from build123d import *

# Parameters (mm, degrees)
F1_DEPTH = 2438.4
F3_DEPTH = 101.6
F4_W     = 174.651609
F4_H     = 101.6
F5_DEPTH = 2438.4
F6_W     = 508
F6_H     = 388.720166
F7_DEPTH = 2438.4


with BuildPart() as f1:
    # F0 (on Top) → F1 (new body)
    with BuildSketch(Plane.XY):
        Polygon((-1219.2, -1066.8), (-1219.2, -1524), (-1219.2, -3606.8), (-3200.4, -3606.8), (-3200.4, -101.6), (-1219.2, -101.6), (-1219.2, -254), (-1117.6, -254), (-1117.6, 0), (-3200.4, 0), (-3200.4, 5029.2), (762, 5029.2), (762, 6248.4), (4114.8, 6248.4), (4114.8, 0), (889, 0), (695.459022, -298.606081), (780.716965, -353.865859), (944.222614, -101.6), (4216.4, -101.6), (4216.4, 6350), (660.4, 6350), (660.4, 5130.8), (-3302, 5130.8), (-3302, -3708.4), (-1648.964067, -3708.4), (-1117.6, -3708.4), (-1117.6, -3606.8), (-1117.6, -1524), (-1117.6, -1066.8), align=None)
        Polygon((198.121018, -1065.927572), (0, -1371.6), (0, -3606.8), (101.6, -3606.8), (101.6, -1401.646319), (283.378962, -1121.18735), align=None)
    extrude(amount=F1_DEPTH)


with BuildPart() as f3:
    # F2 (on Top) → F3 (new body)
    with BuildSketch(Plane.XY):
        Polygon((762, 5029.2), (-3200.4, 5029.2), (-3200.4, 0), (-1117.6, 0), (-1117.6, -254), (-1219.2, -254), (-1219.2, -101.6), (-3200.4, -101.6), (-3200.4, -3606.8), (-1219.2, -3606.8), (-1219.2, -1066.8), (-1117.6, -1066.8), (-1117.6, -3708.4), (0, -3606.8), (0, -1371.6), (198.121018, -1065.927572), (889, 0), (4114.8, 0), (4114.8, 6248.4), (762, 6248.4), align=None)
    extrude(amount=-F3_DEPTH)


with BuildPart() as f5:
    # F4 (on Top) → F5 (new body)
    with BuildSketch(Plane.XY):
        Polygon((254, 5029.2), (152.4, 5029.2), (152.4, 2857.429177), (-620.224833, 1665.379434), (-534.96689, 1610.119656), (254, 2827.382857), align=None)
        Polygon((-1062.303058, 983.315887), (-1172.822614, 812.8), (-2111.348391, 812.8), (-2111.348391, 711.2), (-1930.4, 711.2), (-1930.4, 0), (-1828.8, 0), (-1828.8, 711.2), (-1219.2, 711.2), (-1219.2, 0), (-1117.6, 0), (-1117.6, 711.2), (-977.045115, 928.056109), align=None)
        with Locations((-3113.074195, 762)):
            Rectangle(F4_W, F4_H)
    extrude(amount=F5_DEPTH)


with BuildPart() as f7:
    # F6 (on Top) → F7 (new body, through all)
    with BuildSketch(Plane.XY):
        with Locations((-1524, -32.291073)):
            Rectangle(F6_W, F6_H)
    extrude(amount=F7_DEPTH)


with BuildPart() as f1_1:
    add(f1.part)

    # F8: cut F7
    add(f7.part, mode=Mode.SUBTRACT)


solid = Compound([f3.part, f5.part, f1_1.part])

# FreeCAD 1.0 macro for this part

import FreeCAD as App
import Part
import Sketcher

V = App.Vector
Q = App.Units.Quantity

doc = App.newDocument("Part")
body = doc.addObject("PartDesign::Body", "Body")
body.AllowCompound = True

# Sketch on XY plane
sketch1 = body.newObject("Sketcher::SketchObject", "Sketch")
sketch1.AttachmentSupport = (doc.getObject("XY_Plane"), [""])
sketch1.MapMode = "FlatFace"
sketch1.addGeometry(Part.LineSegment(V(-1219, -1067, 0), V(-1219, -3607, 0)), False)
sketch1.addGeometry(Part.LineSegment(V(-1219, -3607, 0), V(-3200, -3607, 0)), False)
sketch1.addGeometry(Part.LineSegment(V(-3200, -3607, 0), V(-3200, -102, 0)), False)
sketch1.addGeometry(Part.LineSegment(V(-3200, -102, 0), V(-1219, -102, 0)), False)
sketch1.addGeometry(Part.LineSegment(V(-1219, -102, 0), V(-1219, -254, 0)), False)
sketch1.addGeometry(Part.LineSegment(V(-1219, -254, 0), V(-1118, -254, 0)), False)
sketch1.addGeometry(Part.LineSegment(V(-1118, -254, 0), V(-1118, 0, 0)), False)
sketch1.addGeometry(Part.LineSegment(V(-1118, 0, 0), V(-3200, 0, 0)), False)
sketch1.addGeometry(Part.LineSegment(V(-3200, 0, 0), V(-3200, 5029, 0)), False)
sketch1.addGeometry(Part.LineSegment(V(-3200, 5029, 0), V(762, 5029, 0)), False)
sketch1.addGeometry(Part.LineSegment(V(762, 5029, 0), V(762, 6248, 0)), False)
sketch1.addGeometry(Part.LineSegment(V(762, 6248, 0), V(4115, 6248, 0)), False)
sketch1.addGeometry(Part.LineSegment(V(4115, 6248, 0), V(4115, 0, 0)), False)
sketch1.addGeometry(Part.LineSegment(V(4115, 0, 0), V(889, 0, 0)), False)
sketch1.addGeometry(Part.LineSegment(V(889, 0, 0), V(695, -299, 0)), False)
sketch1.addGeometry(Part.LineSegment(V(695, -299, 0), V(781, -354, 0)), False)
sketch1.addGeometry(Part.LineSegment(V(781, -354, 0), V(944, -102, 0)), False)
sketch1.addGeometry(Part.LineSegment(V(944, -102, 0), V(4216, -102, 0)), False)
sketch1.addGeometry(Part.LineSegment(V(4216, -102, 0), V(4216, 6350, 0)), False)
sketch1.addGeometry(Part.LineSegment(V(4216, 6350, 0), V(660, 6350, 0)), False)
sketch1.addGeometry(Part.LineSegment(V(660, 6350, 0), V(660, 5131, 0)), False)
sketch1.addGeometry(Part.LineSegment(V(660, 5131, 0), V(-3302, 5131, 0)), False)
sketch1.addGeometry(Part.LineSegment(V(-3302, 5131, 0), V(-3302, -3708, 0)), False)
sketch1.addGeometry(Part.LineSegment(V(-3302, -3708, 0), V(-1118, -3708, 0)), False)
sketch1.addGeometry(Part.LineSegment(V(-1118, -3708, 0), V(-1118, -1067, 0)), False)
sketch1.addGeometry(Part.LineSegment(V(-1118, -1067, 0), V(-1219, -1067, 0)), False)
sketch1.addGeometry(Part.LineSegment(V(198, -1066, 0), V(0, -1372, 0)), False)
sketch1.addGeometry(Part.LineSegment(V(0, -1372, 0), V(0, -3607, 0)), False)
sketch1.addGeometry(Part.LineSegment(V(0, -3607, 0), V(102, -3607, 0)), False)
sketch1.addGeometry(Part.LineSegment(V(102, -3607, 0), V(102, -1402, 0)), False)
sketch1.addGeometry(Part.LineSegment(V(102, -1402, 0), V(283, -1121, 0)), False)
sketch1.addGeometry(Part.LineSegment(V(283, -1121, 0), V(198, -1066, 0)), False)
sketch1.addConstraint(Sketcher.Constraint("Coincident", 0, 2, 1, 1))
sketch1.addConstraint(Sketcher.Constraint("Coincident", 1, 2, 2, 1))
sketch1.addConstraint(Sketcher.Constraint("Coincident", 2, 2, 3, 1))
sketch1.addConstraint(Sketcher.Constraint("Coincident", 3, 2, 4, 1))
sketch1.addConstraint(Sketcher.Constraint("Coincident", 4, 2, 5, 1))
sketch1.addConstraint(Sketcher.Constraint("Coincident", 5, 2, 6, 1))
sketch1.addConstraint(Sketcher.Constraint("Coincident", 6, 2, 7, 1))
sketch1.addConstraint(Sketcher.Constraint("Coincident", 7, 2, 8, 1))
sketch1.addConstraint(Sketcher.Constraint("Coincident", 8, 2, 9, 1))
sketch1.addConstraint(Sketcher.Constraint("Coincident", 9, 2, 10, 1))
sketch1.addConstraint(Sketcher.Constraint("Coincident", 10, 2, 11, 1))
sketch1.addConstraint(Sketcher.Constraint("Coincident", 11, 2, 12, 1))
sketch1.addConstraint(Sketcher.Constraint("Coincident", 12, 2, 13, 1))
sketch1.addConstraint(Sketcher.Constraint("Coincident", 13, 2, 14, 1))
sketch1.addConstraint(Sketcher.Constraint("Coincident", 14, 2, 15, 1))
sketch1.addConstraint(Sketcher.Constraint("Coincident", 15, 2, 16, 1))
sketch1.addConstraint(Sketcher.Constraint("Coincident", 16, 2, 17, 1))
sketch1.addConstraint(Sketcher.Constraint("Coincident", 17, 2, 18, 1))
sketch1.addConstraint(Sketcher.Constraint("Coincident", 18, 2, 19, 1))
sketch1.addConstraint(Sketcher.Constraint("Coincident", 19, 2, 20, 1))
sketch1.addConstraint(Sketcher.Constraint("Coincident", 20, 2, 21, 1))
sketch1.addConstraint(Sketcher.Constraint("Coincident", 21, 2, 22, 1))
sketch1.addConstraint(Sketcher.Constraint("Coincident", 22, 2, 23, 1))
sketch1.addConstraint(Sketcher.Constraint("Coincident", 23, 2, 24, 1))
sketch1.addConstraint(Sketcher.Constraint("Coincident", 24, 2, 25, 1))
sketch1.addConstraint(Sketcher.Constraint("Coincident", 25, 2, 0, 1))
sketch1.addConstraint(Sketcher.Constraint("Coincident", 26, 2, 27, 1))
sketch1.addConstraint(Sketcher.Constraint("Coincident", 27, 2, 28, 1))
sketch1.addConstraint(Sketcher.Constraint("Coincident", 28, 2, 29, 1))
sketch1.addConstraint(Sketcher.Constraint("Coincident", 29, 2, 30, 1))
sketch1.addConstraint(Sketcher.Constraint("Coincident", 30, 2, 31, 1))
sketch1.addConstraint(Sketcher.Constraint("Coincident", 31, 2, 26, 1))
sketch1.addConstraint(Sketcher.Constraint("Vertical", 0))
sketch1.addConstraint(Sketcher.Constraint("Horizontal", 1))
sketch1.addConstraint(Sketcher.Constraint("Vertical", 2))
sketch1.addConstraint(Sketcher.Constraint("Horizontal", 3))
sketch1.addConstraint(Sketcher.Constraint("Vertical", 4))
sketch1.addConstraint(Sketcher.Constraint("Horizontal", 5))
sketch1.addConstraint(Sketcher.Constraint("Vertical", 6))
sketch1.addConstraint(Sketcher.Constraint("Horizontal", 7))
sketch1.addConstraint(Sketcher.Constraint("Vertical", 8))
sketch1.addConstraint(Sketcher.Constraint("Horizontal", 9))
sketch1.addConstraint(Sketcher.Constraint("Vertical", 10))
sketch1.addConstraint(Sketcher.Constraint("Horizontal", 11))
sketch1.addConstraint(Sketcher.Constraint("Vertical", 12))
sketch1.addConstraint(Sketcher.Constraint("Horizontal", 13))
sketch1.addConstraint(Sketcher.Constraint("Horizontal", 17))
sketch1.addConstraint(Sketcher.Constraint("Vertical", 18))
sketch1.addConstraint(Sketcher.Constraint("Horizontal", 19))
sketch1.addConstraint(Sketcher.Constraint("Vertical", 20))
sketch1.addConstraint(Sketcher.Constraint("Horizontal", 21))
sketch1.addConstraint(Sketcher.Constraint("Vertical", 22))
sketch1.addConstraint(Sketcher.Constraint("Horizontal", 23))
sketch1.addConstraint(Sketcher.Constraint("Vertical", 24))
sketch1.addConstraint(Sketcher.Constraint("Horizontal", 25))
sketch1.addConstraint(Sketcher.Constraint("Vertical", 27))
sketch1.addConstraint(Sketcher.Constraint("Horizontal", 28))
sketch1.addConstraint(Sketcher.Constraint("Vertical", 29))
sketch1.addConstraint(Sketcher.Constraint("PointOnObject", 6, 2, -1))
sketch1.addConstraint(Sketcher.Constraint("PointOnObject", 12, 2, -1))
sketch1.addConstraint(Sketcher.Constraint("PointOnObject", 26, 2, -2))
sketch1.addConstraint(Sketcher.Constraint("Perpendicular", 14, 15))
sketch1.addConstraint(Sketcher.Constraint("Perpendicular", 15, 16))
sketch1.addConstraint(Sketcher.Constraint("Parallel", 16, 26))
sketch1.addConstraint(Sketcher.Constraint("Parallel", 26, 30))
sketch1.addConstraint(Sketcher.Constraint("Perpendicular", 30, 31))
sketch1.addConstraint(Sketcher.Constraint("Horizontal", 3, 2, 16, 2))
sketch1.addConstraint(Sketcher.Constraint("Horizontal", 1, 2, 27, 2))
sketch1.addConstraint(Sketcher.Constraint("Vertical", 0, 2, 3, 2))
sketch1.addConstraint(Sketcher.Constraint("Vertical", 2, 2, 7, 2))
sketch1.addConstraint(Sketcher.Constraint("Vertical", 6, 2, 23, 2))
sketch1.addConstraint(Sketcher.Constraint("Equal", 9, 21))
sketch1.addConstraint(Sketcher.Constraint("Equal", 25, 28))
sketch1.addConstraint(Sketcher.Constraint("Equal", 10, 20))
sketch1.addConstraint(Sketcher.Constraint("Equal", 15, 31))
sketch1.addConstraint(Sketcher.Constraint("DistanceX", 1, 2, 1, 1, Q("78 in")))
sketch1.addConstraint(Sketcher.Constraint("DistanceX", 5, 1, 5, 2, Q("4 in")))
sketch1.addConstraint(Sketcher.Constraint("DistanceX", 9, 1, 9, 2, Q("156 in")))
sketch1.addConstraint(Sketcher.Constraint("DistanceX", 11, 1, 11, 2, Q("132 in")))
sketch1.addConstraint(Sketcher.Constraint("DistanceX", 13, 2, 13, 1, Q("127 in")))
sketch1.addConstraint(Sketcher.Constraint("DistanceX", 19, 2, 19, 1, Q("140 in")))
sketch1.addConstraint(Sketcher.Constraint("DistanceX", 23, 1, 23, 2, Q("86 in")))
sketch1.addConstraint(Sketcher.Constraint("DistanceY", 0, 2, 0, 1, Q("100 in")))
sketch1.addConstraint(Sketcher.Constraint("DistanceY", 2, 1, 2, 2, Q("138 in")))
sketch1.addConstraint(Sketcher.Constraint("DistanceY", 4, 2, 4, 1, Q("6 in")))
sketch1.addConstraint(Sketcher.Constraint("DistanceY", 6, 1, 6, 2, Q("10 in")))
sketch1.addConstraint(Sketcher.Constraint("DistanceY", 8, 1, 8, 2, Q("198 in")))
sketch1.addConstraint(Sketcher.Constraint("DistanceY", 10, 1, 10, 2, Q("48 in")))
sketch1.addConstraint(Sketcher.Constraint("DistanceY", 18, 1, 18, 2, Q("254 in")))
sketch1.addConstraint(Sketcher.Constraint("DistanceY", 22, 2, 22, 1, Q("348 in")))
sketch1.addConstraint(Sketcher.Constraint("DistanceY", 27, 2, 27, 1, Q("88 in")))
sketch1.addConstraint(Sketcher.Constraint("Distance", 15, Q("4 in")))
sketch1.addConstraint(Sketcher.Constraint("DistanceX", 0, 2, -1, 1, Q("48 in")))
sketch1.addConstraint(Sketcher.Constraint("DistanceY", 29, 1, 29, 2, Q("2205.153681 mm")))
sketch1.addConstraint(Sketcher.Constraint("Distance", 16, Q("300.619628 mm")))
sketch1.addConstraint(Sketcher.Constraint("Distance", 26, Q("364.263052 mm")))
pad1 = body.newObject("PartDesign::Pad", "Pad")
pad1.Profile = sketch1
pad1.Length = Q("96 in")
body2 = doc.addObject("PartDesign::Body", "Body001")

# Sketch on XY plane
sketch2 = body2.newObject("Sketcher::SketchObject", "Sketch001")
sketch2.AttachmentSupport = (doc.getObject("XY_Plane001"), [""])
sketch2.MapMode = "FlatFace"
sketch2.addGeometry(Part.LineSegment(V(762, 5029, 0), V(-3200, 5029, 0)), False)
sketch2.addGeometry(Part.LineSegment(V(-3200, 5029, 0), V(-3200, 0, 0)), False)
sketch2.addGeometry(Part.LineSegment(V(-3200, 0, 0), V(-1118, 0, 0)), False)
sketch2.addGeometry(Part.LineSegment(V(-1118, 0, 0), V(-1118, -254, 0)), False)
sketch2.addGeometry(Part.LineSegment(V(-1118, -254, 0), V(-1219, -254, 0)), False)
sketch2.addGeometry(Part.LineSegment(V(-1219, -254, 0), V(-1219, -102, 0)), False)
sketch2.addGeometry(Part.LineSegment(V(-1219, -102, 0), V(-3200, -102, 0)), False)
sketch2.addGeometry(Part.LineSegment(V(-3200, -102, 0), V(-3200, -3607, 0)), False)
sketch2.addGeometry(Part.LineSegment(V(-3200, -3607, 0), V(-1219, -3607, 0)), False)
sketch2.addGeometry(Part.LineSegment(V(-1219, -3607, 0), V(-1219, -1067, 0)), False)
sketch2.addGeometry(Part.LineSegment(V(-1219, -1067, 0), V(-1118, -1067, 0)), False)
sketch2.addGeometry(Part.LineSegment(V(-1118, -1067, 0), V(-1118, -3708, 0)), False)
sketch2.addGeometry(Part.LineSegment(V(-1118, -3708, 0), V(0, -3607, 0)), False)
sketch2.addGeometry(Part.LineSegment(V(0, -3607, 0), V(0, -1372, 0)), False)
sketch2.addGeometry(Part.LineSegment(V(0, -1372, 0), V(198, -1066, 0)), False)
sketch2.addGeometry(Part.LineSegment(V(198, -1066, 0), V(889, 0, 0)), False)
sketch2.addGeometry(Part.LineSegment(V(889, 0, 0), V(4115, 0, 0)), False)
sketch2.addGeometry(Part.LineSegment(V(4115, 0, 0), V(4115, 6248, 0)), False)
sketch2.addGeometry(Part.LineSegment(V(4115, 6248, 0), V(762, 6248, 0)), False)
sketch2.addGeometry(Part.LineSegment(V(762, 6248, 0), V(762, 5029, 0)), False)
sketch2.addConstraint(Sketcher.Constraint("Coincident", 0, 2, 1, 1))
sketch2.addConstraint(Sketcher.Constraint("Coincident", 1, 2, 2, 1))
sketch2.addConstraint(Sketcher.Constraint("Coincident", 2, 2, 3, 1))
sketch2.addConstraint(Sketcher.Constraint("Coincident", 3, 2, 4, 1))
sketch2.addConstraint(Sketcher.Constraint("Coincident", 4, 2, 5, 1))
sketch2.addConstraint(Sketcher.Constraint("Coincident", 5, 2, 6, 1))
sketch2.addConstraint(Sketcher.Constraint("Coincident", 6, 2, 7, 1))
sketch2.addConstraint(Sketcher.Constraint("Coincident", 7, 2, 8, 1))
sketch2.addConstraint(Sketcher.Constraint("Coincident", 8, 2, 9, 1))
sketch2.addConstraint(Sketcher.Constraint("Coincident", 9, 2, 10, 1))
sketch2.addConstraint(Sketcher.Constraint("Coincident", 10, 2, 11, 1))
sketch2.addConstraint(Sketcher.Constraint("Coincident", 11, 2, 12, 1))
sketch2.addConstraint(Sketcher.Constraint("Coincident", 12, 2, 13, 1))
sketch2.addConstraint(Sketcher.Constraint("Coincident", 13, 2, 14, 1))
sketch2.addConstraint(Sketcher.Constraint("Coincident", 14, 2, 15, 1))
sketch2.addConstraint(Sketcher.Constraint("Coincident", 15, 2, 16, 1))
sketch2.addConstraint(Sketcher.Constraint("Coincident", 16, 2, 17, 1))
sketch2.addConstraint(Sketcher.Constraint("Coincident", 17, 2, 18, 1))
sketch2.addConstraint(Sketcher.Constraint("Coincident", 18, 2, 19, 1))
sketch2.addConstraint(Sketcher.Constraint("Coincident", 19, 2, 0, 1))
sketch2.addConstraint(Sketcher.Constraint("Horizontal", 0))
sketch2.addConstraint(Sketcher.Constraint("Vertical", 1))
sketch2.addConstraint(Sketcher.Constraint("Horizontal", 2))
sketch2.addConstraint(Sketcher.Constraint("Vertical", 3))
sketch2.addConstraint(Sketcher.Constraint("Horizontal", 4))
sketch2.addConstraint(Sketcher.Constraint("Vertical", 5))
sketch2.addConstraint(Sketcher.Constraint("Horizontal", 6))
sketch2.addConstraint(Sketcher.Constraint("Vertical", 7))
sketch2.addConstraint(Sketcher.Constraint("Horizontal", 8))
sketch2.addConstraint(Sketcher.Constraint("Vertical", 9))
sketch2.addConstraint(Sketcher.Constraint("Horizontal", 10))
sketch2.addConstraint(Sketcher.Constraint("Vertical", 11))
sketch2.addConstraint(Sketcher.Constraint("Vertical", 13))
sketch2.addConstraint(Sketcher.Constraint("Horizontal", 16))
sketch2.addConstraint(Sketcher.Constraint("Vertical", 17))
sketch2.addConstraint(Sketcher.Constraint("Horizontal", 18))
sketch2.addConstraint(Sketcher.Constraint("Vertical", 19))
sketch2.addConstraint(Sketcher.Constraint("PointOnObject", 1, 2, -1))
sketch2.addConstraint(Sketcher.Constraint("PointOnObject", 12, 2, -2))
sketch2.addConstraint(Sketcher.Constraint("PointOnObject", 15, 2, -1))
sketch2.addConstraint(Sketcher.Constraint("Parallel", 14, 15))
sketch2.addConstraint(Sketcher.Constraint("Horizontal", 8, 2, 12, 2))
sketch2.addConstraint(Sketcher.Constraint("Vertical", 1, 2, 6, 2))
sketch2.addConstraint(Sketcher.Constraint("Vertical", 5, 2, 8, 2))
sketch2.addConstraint(Sketcher.Constraint("Vertical", 3, 2, 10, 2))
sketch2.addConstraint(Sketcher.Constraint("DistanceX", 0, 2, 0, 1, Q("156 in")))
sketch2.addConstraint(Sketcher.Constraint("DistanceX", 2, 1, 2, 2, Q("82 in")))
sketch2.addConstraint(Sketcher.Constraint("DistanceX", 4, 2, 4, 1, Q("4 in")))
sketch2.addConstraint(Sketcher.Constraint("DistanceX", 16, 1, 16, 2, Q("127 in")))
sketch2.addConstraint(Sketcher.Constraint("DistanceX", 18, 2, 18, 1, Q("132 in")))
sketch2.addConstraint(Sketcher.Constraint("DistanceY", 1, 2, 1, 1, Q("198 in")))
sketch2.addConstraint(Sketcher.Constraint("DistanceY", 3, 2, 3, 1, Q("10 in")))
sketch2.addConstraint(Sketcher.Constraint("DistanceY", 5, 1, 5, 2, Q("6 in")))
sketch2.addConstraint(Sketcher.Constraint("DistanceY", 7, 2, 7, 1, Q("138 in")))
sketch2.addConstraint(Sketcher.Constraint("DistanceY", 9, 1, 9, 2, Q("100 in")))
sketch2.addConstraint(Sketcher.Constraint("DistanceY", 11, 2, 11, 1, Q("104 in")))
sketch2.addConstraint(Sketcher.Constraint("DistanceY", 13, 1, 13, 2, Q("88 in")))
sketch2.addConstraint(Sketcher.Constraint("DistanceY", 17, 1, 17, 2, Q("246 in")))
sketch2.addConstraint(Sketcher.Constraint("DistanceX", 0, 2, -1, 1, Q("126 in")))
sketch2.addConstraint(Sketcher.Constraint("Distance", 14, Q("364.263052 mm")))
pad2 = body2.newObject("PartDesign::Pad", "Pad001")
pad2.Profile = sketch2
pad2.Length = Q("4 in")
pad2.Reversed = True
body3 = doc.addObject("PartDesign::Body", "Body002")
body3.AllowCompound = True

# Sketch on XY plane
sketch3 = body3.newObject("Sketcher::SketchObject", "Sketch002")
sketch3.AttachmentSupport = (doc.getObject("XY_Plane002"), [""])
sketch3.MapMode = "FlatFace"
sketch3.addGeometry(Part.LineSegment(V(254, 5029, 0), V(152, 5029, 0)), False)
sketch3.addGeometry(Part.LineSegment(V(152, 5029, 0), V(152, 2857, 0)), False)
sketch3.addGeometry(Part.LineSegment(V(152, 2857, 0), V(-620, 1665, 0)), False)
sketch3.addGeometry(Part.LineSegment(V(-620, 1665, 0), V(-535, 1610, 0)), False)
sketch3.addGeometry(Part.LineSegment(V(-535, 1610, 0), V(254, 2827, 0)), False)
sketch3.addGeometry(Part.LineSegment(V(254, 2827, 0), V(254, 5029, 0)), False)
sketch3.addGeometry(Part.LineSegment(V(-1062, 983, 0), V(-1173, 813, 0)), False)
sketch3.addGeometry(Part.LineSegment(V(-1173, 813, 0), V(-2111, 813, 0)), False)
sketch3.addGeometry(Part.LineSegment(V(-2111, 813, 0), V(-2111, 711, 0)), False)
sketch3.addGeometry(Part.LineSegment(V(-2111, 711, 0), V(-1930, 711, 0)), False)
sketch3.addGeometry(Part.LineSegment(V(-1930, 711, 0), V(-1930, 0, 0)), False)
sketch3.addGeometry(Part.LineSegment(V(-1930, 0, 0), V(-1829, 0, 0)), False)
sketch3.addGeometry(Part.LineSegment(V(-1829, 0, 0), V(-1829, 711, 0)), False)
sketch3.addGeometry(Part.LineSegment(V(-1829, 711, 0), V(-1219, 711, 0)), False)
sketch3.addGeometry(Part.LineSegment(V(-1219, 711, 0), V(-1219, 0, 0)), False)
sketch3.addGeometry(Part.LineSegment(V(-1219, 0, 0), V(-1118, 0, 0)), False)
sketch3.addGeometry(Part.LineSegment(V(-1118, 0, 0), V(-1118, 711, 0)), False)
sketch3.addGeometry(Part.LineSegment(V(-1118, 711, 0), V(-977, 928, 0)), False)
sketch3.addGeometry(Part.LineSegment(V(-977, 928, 0), V(-1062, 983, 0)), False)
sketch3.addGeometry(Part.LineSegment(V(-3200, 813, 0), V(-3200, 711, 0)), False)
sketch3.addGeometry(Part.LineSegment(V(-3200, 711, 0), V(-3026, 711, 0)), False)
sketch3.addGeometry(Part.LineSegment(V(-3026, 711, 0), V(-3026, 813, 0)), False)
sketch3.addGeometry(Part.LineSegment(V(-3026, 813, 0), V(-3200, 813, 0)), False)
sketch3.addConstraint(Sketcher.Constraint("Coincident", 0, 2, 1, 1))
sketch3.addConstraint(Sketcher.Constraint("Coincident", 1, 2, 2, 1))
sketch3.addConstraint(Sketcher.Constraint("Coincident", 2, 2, 3, 1))
sketch3.addConstraint(Sketcher.Constraint("Coincident", 3, 2, 4, 1))
sketch3.addConstraint(Sketcher.Constraint("Coincident", 4, 2, 5, 1))
sketch3.addConstraint(Sketcher.Constraint("Coincident", 5, 2, 0, 1))
sketch3.addConstraint(Sketcher.Constraint("Coincident", 6, 2, 7, 1))
sketch3.addConstraint(Sketcher.Constraint("Coincident", 7, 2, 8, 1))
sketch3.addConstraint(Sketcher.Constraint("Coincident", 8, 2, 9, 1))
sketch3.addConstraint(Sketcher.Constraint("Coincident", 9, 2, 10, 1))
sketch3.addConstraint(Sketcher.Constraint("Coincident", 10, 2, 11, 1))
sketch3.addConstraint(Sketcher.Constraint("Coincident", 11, 2, 12, 1))
sketch3.addConstraint(Sketcher.Constraint("Coincident", 12, 2, 13, 1))
sketch3.addConstraint(Sketcher.Constraint("Coincident", 13, 2, 14, 1))
sketch3.addConstraint(Sketcher.Constraint("Coincident", 14, 2, 15, 1))
sketch3.addConstraint(Sketcher.Constraint("Coincident", 15, 2, 16, 1))
sketch3.addConstraint(Sketcher.Constraint("Coincident", 16, 2, 17, 1))
sketch3.addConstraint(Sketcher.Constraint("Coincident", 17, 2, 18, 1))
sketch3.addConstraint(Sketcher.Constraint("Coincident", 18, 2, 6, 1))
sketch3.addConstraint(Sketcher.Constraint("Coincident", 19, 2, 20, 1))
sketch3.addConstraint(Sketcher.Constraint("Coincident", 20, 2, 21, 1))
sketch3.addConstraint(Sketcher.Constraint("Coincident", 21, 2, 22, 1))
sketch3.addConstraint(Sketcher.Constraint("Coincident", 22, 2, 19, 1))
sketch3.addConstraint(Sketcher.Constraint("Horizontal", 0))
sketch3.addConstraint(Sketcher.Constraint("Vertical", 1))
sketch3.addConstraint(Sketcher.Constraint("Vertical", 5))
sketch3.addConstraint(Sketcher.Constraint("Horizontal", 7))
sketch3.addConstraint(Sketcher.Constraint("Vertical", 8))
sketch3.addConstraint(Sketcher.Constraint("Horizontal", 9))
sketch3.addConstraint(Sketcher.Constraint("Vertical", 10))
sketch3.addConstraint(Sketcher.Constraint("Horizontal", 11))
sketch3.addConstraint(Sketcher.Constraint("Vertical", 12))
sketch3.addConstraint(Sketcher.Constraint("Horizontal", 13))
sketch3.addConstraint(Sketcher.Constraint("Vertical", 14))
sketch3.addConstraint(Sketcher.Constraint("Horizontal", 15))
sketch3.addConstraint(Sketcher.Constraint("Vertical", 16))
sketch3.addConstraint(Sketcher.Constraint("Vertical", 19))
sketch3.addConstraint(Sketcher.Constraint("Horizontal", 20))
sketch3.addConstraint(Sketcher.Constraint("Vertical", 21))
sketch3.addConstraint(Sketcher.Constraint("Horizontal", 22))
sketch3.addConstraint(Sketcher.Constraint("PointOnObject", 10, 2, -1))
sketch3.addConstraint(Sketcher.Constraint("PointOnObject", 14, 2, -1))
sketch3.addConstraint(Sketcher.Constraint("Perpendicular", 2, 3))
sketch3.addConstraint(Sketcher.Constraint("Perpendicular", 3, 4))
sketch3.addConstraint(Sketcher.Constraint("Parallel", 4, 6))
sketch3.addConstraint(Sketcher.Constraint("Parallel", 6, 17))
sketch3.addConstraint(Sketcher.Constraint("Perpendicular", 17, 18))
sketch3.addConstraint(Sketcher.Constraint("Horizontal", 9, 2, 12, 2))
sketch3.addConstraint(Sketcher.Constraint("Horizontal", 13, 2, 16, 2))
sketch3.addConstraint(Sketcher.Constraint("Horizontal", 16, 2, 19, 2))
sketch3.addConstraint(Sketcher.Constraint("Horizontal", 7, 2, 21, 2))
sketch3.addConstraint(Sketcher.Constraint("Equal", 0, 11))
sketch3.addConstraint(Sketcher.Constraint("Equal", 11, 15))
sketch3.addConstraint(Sketcher.Constraint("Equal", 15, 8))
sketch3.addConstraint(Sketcher.Constraint("Equal", 3, 18))
sketch3.addConstraint(Sketcher.Constraint("DistanceX", 0, 2, 0, 1, Q("4 in")))
sketch3.addConstraint(Sketcher.Constraint("DistanceX", 13, 1, 13, 2, Q("24 in")))
sketch3.addConstraint(Sketcher.Constraint("DistanceY", 10, 2, 10, 1, Q("28 in")))
sketch3.addConstraint(Sketcher.Constraint("Distance", 3, Q("4 in")))
sketch3.addConstraint(Sketcher.Constraint("Distance", 6, Q("8 in")))
sketch3.addConstraint(Sketcher.Constraint("DistanceX", -1, 1, 0, 2, Q("6 in")))
sketch3.addConstraint(Sketcher.Constraint("DistanceY", -1, 1, 0, 2, Q("198 in")))
sketch3.addConstraint(Sketcher.Constraint("DistanceX", 9, 2, -1, 1, Q("76 in")))
sketch3.addConstraint(Sketcher.Constraint("DistanceX", 19, 2, -1, 1, Q("126 in")))
sketch3.addConstraint(Sketcher.Constraint("DistanceX", 20, 2, 8, 2, Q("36 in")))
sketch3.addConstraint(Sketcher.Constraint("DistanceX", 9, 1, 9, 2, Q("180.948391 mm")))
sketch3.addConstraint(Sketcher.Constraint("DistanceY", 3, 2, 4, 2, Q("1217.263201 mm")))
sketch3.addConstraint(Sketcher.Constraint("DistanceX", 7, 2, 3, 2, Q("1576.381501 mm")))
sketch3.addConstraint(Sketcher.Constraint("DistanceY", 1, 2, 1, 1, Q("2171.770823 mm")))
pad3 = body3.newObject("PartDesign::Pad", "Pad002")
pad3.Profile = sketch3
pad3.Length = Q("96 in")
body4 = doc.addObject("PartDesign::Body", "Body003")

# Sketch on XY plane
sketch4 = body4.newObject("Sketcher::SketchObject", "Sketch003")
sketch4.AttachmentSupport = (doc.getObject("XY_Plane003"), [""])
sketch4.MapMode = "FlatFace"
sketch4.addGeometry(Part.LineSegment(V(-1778, 162, 0), V(-1778, -227, 0)), False)
sketch4.addGeometry(Part.LineSegment(V(-1778, -227, 0), V(-1270, -227, 0)), False)
sketch4.addGeometry(Part.LineSegment(V(-1270, -227, 0), V(-1270, 162, 0)), False)
sketch4.addGeometry(Part.LineSegment(V(-1270, 162, 0), V(-1778, 162, 0)), False)
sketch4.addConstraint(Sketcher.Constraint("Coincident", 0, 2, 1, 1))
sketch4.addConstraint(Sketcher.Constraint("Coincident", 1, 2, 2, 1))
sketch4.addConstraint(Sketcher.Constraint("Coincident", 2, 2, 3, 1))
sketch4.addConstraint(Sketcher.Constraint("Coincident", 3, 2, 0, 1))
sketch4.addConstraint(Sketcher.Constraint("Vertical", 0))
sketch4.addConstraint(Sketcher.Constraint("Horizontal", 1))
sketch4.addConstraint(Sketcher.Constraint("Vertical", 2))
sketch4.addConstraint(Sketcher.Constraint("Horizontal", 3))
sketch4.addConstraint(Sketcher.Constraint("DistanceX", 1, 1, 1, 2, Q("20 in")))
sketch4.addConstraint(Sketcher.Constraint("DistanceX", 0, 2, -1, 1, Q("70 in")))
sketch4.addConstraint(Sketcher.Constraint("DistanceY", 0, 2, 0, 1, Q("388.720166 mm")))
sketch4.addConstraint(Sketcher.Constraint("DistanceY", -1, 1, 2, 2, Q("162.06901 mm")))
pad4 = body4.newObject("PartDesign::Pad", "Pad003")
pad4.Profile = sketch4
pad4.Length = Q("96 in")
body.AllowCompound = True
doc.recompute()

boolean = body.newObject("PartDesign::Boolean", "Boolean")
boolean.Type = "Cut"
boolean.addObjects([body4])

doc.recompute()
